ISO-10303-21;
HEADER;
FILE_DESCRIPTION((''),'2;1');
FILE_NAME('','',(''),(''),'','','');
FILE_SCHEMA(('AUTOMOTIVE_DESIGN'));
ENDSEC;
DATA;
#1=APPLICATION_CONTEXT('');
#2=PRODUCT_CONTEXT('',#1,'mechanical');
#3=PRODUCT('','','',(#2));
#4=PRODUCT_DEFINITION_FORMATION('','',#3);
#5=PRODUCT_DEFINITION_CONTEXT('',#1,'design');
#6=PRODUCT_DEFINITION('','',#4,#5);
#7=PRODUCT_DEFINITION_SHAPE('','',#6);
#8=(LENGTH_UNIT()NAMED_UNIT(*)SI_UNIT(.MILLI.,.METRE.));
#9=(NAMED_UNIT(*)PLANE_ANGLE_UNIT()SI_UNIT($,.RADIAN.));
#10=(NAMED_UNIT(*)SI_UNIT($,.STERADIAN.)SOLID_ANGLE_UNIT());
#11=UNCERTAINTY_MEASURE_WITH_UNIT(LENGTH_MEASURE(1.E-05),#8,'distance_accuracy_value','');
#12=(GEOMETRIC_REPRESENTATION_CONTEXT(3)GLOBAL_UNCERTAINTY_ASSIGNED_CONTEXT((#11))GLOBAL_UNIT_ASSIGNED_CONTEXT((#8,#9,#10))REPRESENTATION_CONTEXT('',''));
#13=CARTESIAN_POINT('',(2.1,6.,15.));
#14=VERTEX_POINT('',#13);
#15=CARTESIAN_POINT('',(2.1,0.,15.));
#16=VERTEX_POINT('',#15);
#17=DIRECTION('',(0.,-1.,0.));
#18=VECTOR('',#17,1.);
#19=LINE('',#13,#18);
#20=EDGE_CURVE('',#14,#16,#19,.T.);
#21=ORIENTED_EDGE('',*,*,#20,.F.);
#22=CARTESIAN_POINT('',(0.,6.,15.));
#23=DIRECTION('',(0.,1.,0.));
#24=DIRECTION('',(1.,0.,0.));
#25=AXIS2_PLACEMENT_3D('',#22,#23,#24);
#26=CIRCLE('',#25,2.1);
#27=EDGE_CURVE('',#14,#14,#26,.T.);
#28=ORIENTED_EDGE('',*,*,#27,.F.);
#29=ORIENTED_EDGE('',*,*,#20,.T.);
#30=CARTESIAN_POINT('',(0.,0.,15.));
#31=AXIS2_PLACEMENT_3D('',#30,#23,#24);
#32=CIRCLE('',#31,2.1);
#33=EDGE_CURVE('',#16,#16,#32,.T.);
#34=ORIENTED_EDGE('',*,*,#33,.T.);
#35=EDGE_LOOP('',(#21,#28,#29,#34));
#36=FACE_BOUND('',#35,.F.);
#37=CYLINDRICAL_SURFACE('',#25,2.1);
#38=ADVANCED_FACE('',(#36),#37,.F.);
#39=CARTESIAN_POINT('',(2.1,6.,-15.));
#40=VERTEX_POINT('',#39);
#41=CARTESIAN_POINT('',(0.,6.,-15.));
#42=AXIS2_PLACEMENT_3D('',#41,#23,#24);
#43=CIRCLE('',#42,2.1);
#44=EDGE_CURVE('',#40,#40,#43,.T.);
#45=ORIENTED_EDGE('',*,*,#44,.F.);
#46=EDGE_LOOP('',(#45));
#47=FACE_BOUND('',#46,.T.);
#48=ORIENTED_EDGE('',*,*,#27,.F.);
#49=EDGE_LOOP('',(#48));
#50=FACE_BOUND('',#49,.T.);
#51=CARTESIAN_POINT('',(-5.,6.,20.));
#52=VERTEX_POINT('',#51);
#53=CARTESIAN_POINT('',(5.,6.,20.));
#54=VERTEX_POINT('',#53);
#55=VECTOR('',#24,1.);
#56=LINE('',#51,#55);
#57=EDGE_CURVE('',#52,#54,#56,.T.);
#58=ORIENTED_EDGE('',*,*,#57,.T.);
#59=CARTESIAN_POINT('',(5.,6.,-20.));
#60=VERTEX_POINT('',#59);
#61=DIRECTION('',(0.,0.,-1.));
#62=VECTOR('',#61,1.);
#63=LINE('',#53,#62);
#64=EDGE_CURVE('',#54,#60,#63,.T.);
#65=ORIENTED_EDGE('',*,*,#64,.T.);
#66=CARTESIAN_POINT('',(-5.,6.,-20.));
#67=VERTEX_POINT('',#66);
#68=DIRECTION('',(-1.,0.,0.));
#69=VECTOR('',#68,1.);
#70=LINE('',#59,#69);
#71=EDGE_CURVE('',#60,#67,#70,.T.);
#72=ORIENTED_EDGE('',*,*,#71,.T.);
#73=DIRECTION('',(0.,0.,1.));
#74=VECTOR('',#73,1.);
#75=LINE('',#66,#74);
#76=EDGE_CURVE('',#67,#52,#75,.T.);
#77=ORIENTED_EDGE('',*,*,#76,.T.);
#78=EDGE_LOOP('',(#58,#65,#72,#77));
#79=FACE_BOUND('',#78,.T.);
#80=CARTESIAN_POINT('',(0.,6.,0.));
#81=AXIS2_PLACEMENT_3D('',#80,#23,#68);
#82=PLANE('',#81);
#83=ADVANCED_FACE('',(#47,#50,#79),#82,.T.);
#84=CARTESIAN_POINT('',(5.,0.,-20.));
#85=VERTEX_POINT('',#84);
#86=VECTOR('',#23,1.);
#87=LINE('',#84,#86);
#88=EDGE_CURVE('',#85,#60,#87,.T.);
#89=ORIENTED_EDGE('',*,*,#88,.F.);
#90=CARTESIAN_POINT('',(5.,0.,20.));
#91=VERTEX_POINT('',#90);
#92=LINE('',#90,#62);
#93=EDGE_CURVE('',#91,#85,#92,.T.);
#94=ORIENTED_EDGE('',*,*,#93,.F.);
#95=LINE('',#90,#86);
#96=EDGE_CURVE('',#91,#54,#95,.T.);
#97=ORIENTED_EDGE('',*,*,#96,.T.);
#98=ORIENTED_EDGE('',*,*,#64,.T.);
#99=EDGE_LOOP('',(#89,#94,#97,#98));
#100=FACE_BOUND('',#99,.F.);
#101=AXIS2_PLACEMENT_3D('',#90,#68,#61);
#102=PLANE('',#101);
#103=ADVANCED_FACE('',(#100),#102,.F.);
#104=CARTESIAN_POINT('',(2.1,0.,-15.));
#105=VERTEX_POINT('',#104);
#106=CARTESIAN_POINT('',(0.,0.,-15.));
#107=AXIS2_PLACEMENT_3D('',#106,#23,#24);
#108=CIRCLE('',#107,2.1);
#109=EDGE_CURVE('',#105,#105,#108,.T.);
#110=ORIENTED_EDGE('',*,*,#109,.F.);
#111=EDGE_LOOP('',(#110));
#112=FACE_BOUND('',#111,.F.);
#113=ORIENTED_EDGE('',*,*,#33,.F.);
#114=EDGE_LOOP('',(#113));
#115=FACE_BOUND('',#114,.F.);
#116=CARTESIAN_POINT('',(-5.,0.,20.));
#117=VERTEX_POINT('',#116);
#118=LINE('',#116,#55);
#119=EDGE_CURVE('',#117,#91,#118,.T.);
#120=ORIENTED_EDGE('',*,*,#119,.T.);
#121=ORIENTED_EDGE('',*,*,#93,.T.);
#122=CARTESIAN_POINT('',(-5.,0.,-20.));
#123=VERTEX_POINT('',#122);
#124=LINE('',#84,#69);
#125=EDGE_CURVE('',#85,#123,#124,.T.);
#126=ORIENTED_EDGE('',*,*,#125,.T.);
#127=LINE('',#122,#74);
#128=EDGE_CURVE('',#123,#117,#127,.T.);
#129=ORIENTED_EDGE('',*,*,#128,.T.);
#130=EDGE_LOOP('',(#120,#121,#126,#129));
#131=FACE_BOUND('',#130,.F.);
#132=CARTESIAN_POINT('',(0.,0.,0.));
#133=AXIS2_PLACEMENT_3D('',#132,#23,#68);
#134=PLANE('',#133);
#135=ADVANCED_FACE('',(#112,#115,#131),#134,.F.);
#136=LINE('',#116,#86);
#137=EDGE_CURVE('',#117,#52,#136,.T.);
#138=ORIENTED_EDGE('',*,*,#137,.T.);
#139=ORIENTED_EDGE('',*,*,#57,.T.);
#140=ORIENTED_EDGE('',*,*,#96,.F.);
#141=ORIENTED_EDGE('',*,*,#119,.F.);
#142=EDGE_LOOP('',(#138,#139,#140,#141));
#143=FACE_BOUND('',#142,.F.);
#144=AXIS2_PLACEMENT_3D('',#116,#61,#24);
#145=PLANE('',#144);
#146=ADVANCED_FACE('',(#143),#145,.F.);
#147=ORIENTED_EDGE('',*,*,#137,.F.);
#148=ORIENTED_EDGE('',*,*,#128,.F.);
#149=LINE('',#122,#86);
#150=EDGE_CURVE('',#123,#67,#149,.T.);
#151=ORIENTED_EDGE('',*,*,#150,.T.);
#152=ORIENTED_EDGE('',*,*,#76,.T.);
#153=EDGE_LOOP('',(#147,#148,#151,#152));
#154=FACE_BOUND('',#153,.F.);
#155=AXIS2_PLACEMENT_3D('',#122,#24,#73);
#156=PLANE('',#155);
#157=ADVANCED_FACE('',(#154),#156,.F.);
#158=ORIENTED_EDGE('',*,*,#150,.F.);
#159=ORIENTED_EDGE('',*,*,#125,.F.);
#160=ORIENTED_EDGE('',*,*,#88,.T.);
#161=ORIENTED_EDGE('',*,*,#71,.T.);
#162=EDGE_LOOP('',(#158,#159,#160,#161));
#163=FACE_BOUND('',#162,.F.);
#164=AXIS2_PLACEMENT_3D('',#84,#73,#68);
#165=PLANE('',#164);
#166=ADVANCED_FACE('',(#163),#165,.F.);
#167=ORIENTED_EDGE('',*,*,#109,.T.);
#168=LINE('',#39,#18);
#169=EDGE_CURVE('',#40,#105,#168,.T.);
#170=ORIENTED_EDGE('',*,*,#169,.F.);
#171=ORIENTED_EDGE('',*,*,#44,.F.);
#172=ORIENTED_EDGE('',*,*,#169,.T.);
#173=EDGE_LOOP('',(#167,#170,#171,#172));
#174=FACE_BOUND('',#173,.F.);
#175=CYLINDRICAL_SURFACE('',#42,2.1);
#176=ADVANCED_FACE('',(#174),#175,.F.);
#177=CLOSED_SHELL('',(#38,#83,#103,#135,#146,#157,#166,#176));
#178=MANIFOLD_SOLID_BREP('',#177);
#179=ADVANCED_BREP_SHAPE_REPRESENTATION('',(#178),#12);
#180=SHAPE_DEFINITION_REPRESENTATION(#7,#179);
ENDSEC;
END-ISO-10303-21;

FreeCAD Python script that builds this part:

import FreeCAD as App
import Part
import Sketcher
from FreeCAD import Vector
Q = App.Units.Quantity

doc = App.newDocument("Part")
body = doc.addObject("PartDesign::Body", "Body")

# Sketch on XZ plane
sketch1 = body.newObject("Sketcher::SketchObject", "Sketch")
sketch1.AttachmentSupport = (doc.getObject("XZ_Plane"), [""])
sketch1.MapMode = "FlatFace"
sketch1.addGeometry([
    Part.LineSegment(Vector(-5, -20, 0), Vector(-5, 20, 0)),
    Part.LineSegment(Vector(-5, 20, 0), Vector(5, 20, 0)),
    Part.LineSegment(Vector(5, 20, 0), Vector(5, -20, 0)),
    Part.LineSegment(Vector(5, -20, 0), Vector(-5, -20, 0)),
], False)
sketch1.addConstraint([
    Sketcher.Constraint("Coincident", 0, 2, 1, 1),
    Sketcher.Constraint("Coincident", 1, 2, 2, 1),
    Sketcher.Constraint("Coincident", 2, 2, 3, 1),
    Sketcher.Constraint("Coincident", 3, 2, 0, 1),
    Sketcher.Constraint("Vertical", 0),
    Sketcher.Constraint("Horizontal", 1),
    Sketcher.Constraint("Vertical", 2),
    Sketcher.Constraint("Horizontal", 3),
    Sketcher.Constraint("Symmetric", 0, 2, 2, 2, -1, 1),
    Sketcher.Constraint("DistanceX", 1, 1, 1, 2, Q("10 mm")),
    Sketcher.Constraint("DistanceY", 0, 1, 0, 2, Q("40 mm")),
])
pad1 = body.newObject("PartDesign::Pad", "Pad")
pad1.Profile = sketch1
pad1.Length = 6
pad1.Reversed = True

# Sketch on XZ plane
sketch2 = body.newObject("Sketcher::SketchObject", "Sketch001")
sketch2.AttachmentSupport = (doc.getObject("XZ_Plane"), [""])
sketch2.MapMode = "FlatFace"
sketch2.AttachmentOffset = App.Placement(Vector(0, 0, -6), App.Rotation())
sketch2.addGeometry([
    Part.Circle(Vector(0, 15, 0), Vector(0, 0, 1), 2.1),
    Part.Circle(Vector(0, -15, 0), Vector(0, 0, 1), 2.1),
], False)
sketch2.addConstraint([
    Sketcher.Constraint("Equal", 0, 1),
    Sketcher.Constraint("Symmetric", 0, 3, 1, 3, -1, 1),
    Sketcher.Constraint("PointOnObject", 0, 3, -2),
    Sketcher.Constraint("Diameter", 0, Q("4.2 mm")),
    Sketcher.Constraint("DistanceY", 1, 3, 0, 3, Q("30 mm")),
])
pocket1 = body.newObject("PartDesign::Pocket", "Pocket")
pocket1.Profile = sketch2
pocket1.Length = 6
pocket1.Reversed = True

doc.recompute()
